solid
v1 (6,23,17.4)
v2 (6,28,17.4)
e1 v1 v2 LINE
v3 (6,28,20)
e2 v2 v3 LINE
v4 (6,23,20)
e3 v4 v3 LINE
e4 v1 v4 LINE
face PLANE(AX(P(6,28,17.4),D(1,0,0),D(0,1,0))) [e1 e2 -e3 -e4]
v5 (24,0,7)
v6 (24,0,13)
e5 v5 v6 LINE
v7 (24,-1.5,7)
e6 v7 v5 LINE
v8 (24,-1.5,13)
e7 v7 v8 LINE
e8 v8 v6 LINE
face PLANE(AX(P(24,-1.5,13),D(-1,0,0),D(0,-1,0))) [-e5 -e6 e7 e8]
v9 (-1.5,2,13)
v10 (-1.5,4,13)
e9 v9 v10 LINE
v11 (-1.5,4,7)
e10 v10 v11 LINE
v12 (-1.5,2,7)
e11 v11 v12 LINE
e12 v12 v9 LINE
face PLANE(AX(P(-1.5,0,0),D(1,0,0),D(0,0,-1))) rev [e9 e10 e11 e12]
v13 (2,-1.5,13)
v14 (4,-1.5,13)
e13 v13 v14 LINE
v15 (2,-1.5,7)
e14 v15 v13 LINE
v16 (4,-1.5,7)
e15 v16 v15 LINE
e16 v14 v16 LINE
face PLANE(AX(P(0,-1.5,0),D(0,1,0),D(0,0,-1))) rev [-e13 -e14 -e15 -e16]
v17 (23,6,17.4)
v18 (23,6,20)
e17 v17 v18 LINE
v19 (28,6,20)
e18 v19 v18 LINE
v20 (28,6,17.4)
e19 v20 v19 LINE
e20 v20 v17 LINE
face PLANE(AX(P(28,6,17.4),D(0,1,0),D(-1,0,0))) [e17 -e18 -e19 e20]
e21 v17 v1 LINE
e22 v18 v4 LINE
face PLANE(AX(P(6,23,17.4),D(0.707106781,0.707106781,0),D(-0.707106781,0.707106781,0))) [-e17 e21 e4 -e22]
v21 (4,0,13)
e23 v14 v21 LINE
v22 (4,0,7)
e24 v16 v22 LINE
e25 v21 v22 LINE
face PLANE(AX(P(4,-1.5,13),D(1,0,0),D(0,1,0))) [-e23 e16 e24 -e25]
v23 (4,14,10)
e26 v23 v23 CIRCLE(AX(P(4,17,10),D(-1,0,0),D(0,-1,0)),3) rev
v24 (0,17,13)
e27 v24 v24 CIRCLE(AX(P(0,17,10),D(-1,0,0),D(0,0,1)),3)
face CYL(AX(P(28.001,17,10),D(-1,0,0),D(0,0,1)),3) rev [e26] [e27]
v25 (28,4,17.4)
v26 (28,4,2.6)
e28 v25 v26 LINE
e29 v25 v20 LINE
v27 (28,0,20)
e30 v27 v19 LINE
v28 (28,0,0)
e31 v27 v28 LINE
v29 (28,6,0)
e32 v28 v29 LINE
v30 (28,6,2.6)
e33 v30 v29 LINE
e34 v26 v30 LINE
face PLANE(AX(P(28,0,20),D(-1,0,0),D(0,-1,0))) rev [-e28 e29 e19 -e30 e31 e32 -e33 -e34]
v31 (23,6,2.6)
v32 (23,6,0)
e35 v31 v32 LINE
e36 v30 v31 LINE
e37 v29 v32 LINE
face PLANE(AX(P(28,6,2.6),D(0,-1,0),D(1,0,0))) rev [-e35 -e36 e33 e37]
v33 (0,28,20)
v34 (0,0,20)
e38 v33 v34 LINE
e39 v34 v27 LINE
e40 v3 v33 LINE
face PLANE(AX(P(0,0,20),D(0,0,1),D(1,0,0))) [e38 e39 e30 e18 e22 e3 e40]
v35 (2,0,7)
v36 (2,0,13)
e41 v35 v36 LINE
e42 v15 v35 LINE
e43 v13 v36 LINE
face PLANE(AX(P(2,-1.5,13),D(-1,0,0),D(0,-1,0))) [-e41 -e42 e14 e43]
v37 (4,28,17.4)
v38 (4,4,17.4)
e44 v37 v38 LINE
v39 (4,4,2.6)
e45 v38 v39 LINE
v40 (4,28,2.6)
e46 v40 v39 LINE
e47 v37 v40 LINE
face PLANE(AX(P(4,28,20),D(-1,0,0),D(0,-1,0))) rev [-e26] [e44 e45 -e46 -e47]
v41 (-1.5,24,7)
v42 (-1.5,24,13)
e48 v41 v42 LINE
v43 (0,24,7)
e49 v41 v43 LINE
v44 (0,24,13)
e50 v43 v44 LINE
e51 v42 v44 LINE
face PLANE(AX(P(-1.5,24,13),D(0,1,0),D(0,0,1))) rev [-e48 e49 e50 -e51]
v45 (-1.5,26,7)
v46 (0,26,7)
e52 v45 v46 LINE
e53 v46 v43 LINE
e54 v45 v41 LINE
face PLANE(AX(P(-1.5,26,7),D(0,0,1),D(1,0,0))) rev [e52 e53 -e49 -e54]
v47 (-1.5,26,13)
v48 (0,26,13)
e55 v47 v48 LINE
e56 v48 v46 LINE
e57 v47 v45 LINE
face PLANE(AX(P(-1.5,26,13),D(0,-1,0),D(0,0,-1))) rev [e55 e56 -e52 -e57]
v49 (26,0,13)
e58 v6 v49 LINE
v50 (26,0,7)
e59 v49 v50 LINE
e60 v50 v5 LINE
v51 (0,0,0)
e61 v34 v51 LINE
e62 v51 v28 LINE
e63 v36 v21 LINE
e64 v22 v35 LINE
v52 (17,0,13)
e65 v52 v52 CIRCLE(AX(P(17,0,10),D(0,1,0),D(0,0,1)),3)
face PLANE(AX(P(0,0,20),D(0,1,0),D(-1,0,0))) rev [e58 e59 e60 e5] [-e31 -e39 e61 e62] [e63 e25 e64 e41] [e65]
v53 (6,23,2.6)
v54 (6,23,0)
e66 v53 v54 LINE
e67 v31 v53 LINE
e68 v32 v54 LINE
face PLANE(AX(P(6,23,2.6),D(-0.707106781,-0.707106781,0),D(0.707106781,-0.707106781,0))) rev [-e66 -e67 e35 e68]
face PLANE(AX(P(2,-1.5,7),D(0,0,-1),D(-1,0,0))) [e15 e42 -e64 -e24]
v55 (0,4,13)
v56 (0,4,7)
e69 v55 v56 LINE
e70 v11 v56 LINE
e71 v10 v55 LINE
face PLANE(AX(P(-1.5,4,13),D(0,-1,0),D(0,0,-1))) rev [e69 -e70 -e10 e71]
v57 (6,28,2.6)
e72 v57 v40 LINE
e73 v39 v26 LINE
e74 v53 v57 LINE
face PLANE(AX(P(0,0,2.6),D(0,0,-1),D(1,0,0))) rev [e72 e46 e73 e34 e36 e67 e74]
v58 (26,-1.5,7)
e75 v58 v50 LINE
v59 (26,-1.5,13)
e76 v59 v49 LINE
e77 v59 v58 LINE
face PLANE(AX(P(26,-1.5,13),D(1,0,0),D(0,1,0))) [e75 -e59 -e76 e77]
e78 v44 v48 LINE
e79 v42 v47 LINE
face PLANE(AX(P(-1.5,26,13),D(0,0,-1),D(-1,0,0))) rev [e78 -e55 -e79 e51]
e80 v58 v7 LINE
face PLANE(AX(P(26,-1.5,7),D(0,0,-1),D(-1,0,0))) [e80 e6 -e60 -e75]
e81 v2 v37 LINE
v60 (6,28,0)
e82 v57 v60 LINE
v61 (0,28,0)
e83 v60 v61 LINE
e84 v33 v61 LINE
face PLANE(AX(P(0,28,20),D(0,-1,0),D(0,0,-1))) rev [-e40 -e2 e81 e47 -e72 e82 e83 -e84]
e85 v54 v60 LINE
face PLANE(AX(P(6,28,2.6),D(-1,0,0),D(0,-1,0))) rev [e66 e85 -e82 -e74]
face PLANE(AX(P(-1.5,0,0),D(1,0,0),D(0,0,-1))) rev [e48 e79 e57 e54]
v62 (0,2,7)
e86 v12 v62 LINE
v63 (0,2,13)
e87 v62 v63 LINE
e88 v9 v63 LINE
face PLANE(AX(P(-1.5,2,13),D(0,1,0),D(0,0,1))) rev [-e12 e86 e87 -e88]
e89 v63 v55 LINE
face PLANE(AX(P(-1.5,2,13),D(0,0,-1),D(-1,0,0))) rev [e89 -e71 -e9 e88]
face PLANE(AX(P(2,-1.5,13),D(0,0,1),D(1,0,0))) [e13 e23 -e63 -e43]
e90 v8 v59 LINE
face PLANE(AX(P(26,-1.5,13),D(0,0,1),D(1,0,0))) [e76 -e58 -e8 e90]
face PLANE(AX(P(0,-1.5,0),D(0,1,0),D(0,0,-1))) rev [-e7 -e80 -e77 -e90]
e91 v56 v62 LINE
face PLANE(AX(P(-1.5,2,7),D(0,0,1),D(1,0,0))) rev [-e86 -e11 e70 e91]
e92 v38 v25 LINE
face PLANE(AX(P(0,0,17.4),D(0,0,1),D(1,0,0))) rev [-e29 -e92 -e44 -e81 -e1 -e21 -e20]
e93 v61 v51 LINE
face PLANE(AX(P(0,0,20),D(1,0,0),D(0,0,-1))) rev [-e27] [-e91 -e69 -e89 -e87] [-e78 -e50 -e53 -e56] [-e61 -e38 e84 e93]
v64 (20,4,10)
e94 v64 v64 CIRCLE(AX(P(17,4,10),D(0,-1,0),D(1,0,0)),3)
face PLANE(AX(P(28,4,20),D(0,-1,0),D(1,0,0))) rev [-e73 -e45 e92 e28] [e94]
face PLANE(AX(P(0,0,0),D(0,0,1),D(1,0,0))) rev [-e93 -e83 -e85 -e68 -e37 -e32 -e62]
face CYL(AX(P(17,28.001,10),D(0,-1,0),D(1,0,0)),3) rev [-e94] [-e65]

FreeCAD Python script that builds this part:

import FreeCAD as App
import Part
import Sketcher

doc = App.newDocument("Part")
body = doc.addObject("PartDesign::Body", "Body")

sketch1 = body.newObject("Sketcher::SketchObject", "Sketch")
sketch1.AttachmentSupport = (doc.getObject("XY_Plane"), [""])
sketch1.MapMode = "FlatFace"
sketch1.addGeometry(Part.LineSegment(App.Vector(0, 28, 0), App.Vector(0, 0, 0)), False)
sketch1.addGeometry(Part.LineSegment(App.Vector(0, 0, 0), App.Vector(28, 0, 0)), False)
sketch1.addGeometry(Part.LineSegment(App.Vector(28, 0, 0), App.Vector(28, 4, 0)), False)
sketch1.addGeometry(Part.LineSegment(App.Vector(28, 4, 0), App.Vector(4, 4, 0)), False)
sketch1.addGeometry(Part.LineSegment(App.Vector(4, 4, 0), App.Vector(4, 28, 0)), False)
sketch1.addGeometry(Part.LineSegment(App.Vector(4, 28, 0), App.Vector(0, 28, 0)), False)
sketch1.addConstraint(Sketcher.Constraint("Coincident", 0, 2, 1, 1))
sketch1.addConstraint(Sketcher.Constraint("Coincident", 1, 2, 2, 1))
sketch1.addConstraint(Sketcher.Constraint("Coincident", 2, 2, 3, 1))
sketch1.addConstraint(Sketcher.Constraint("Coincident", 3, 2, 4, 1))
sketch1.addConstraint(Sketcher.Constraint("Coincident", 4, 2, 5, 1))
sketch1.addConstraint(Sketcher.Constraint("Coincident", 5, 2, 0, 1))
sketch1.addConstraint(Sketcher.Constraint("Vertical", 0))
sketch1.addConstraint(Sketcher.Constraint("Horizontal", 1))
sketch1.addConstraint(Sketcher.Constraint("Vertical", 2))
sketch1.addConstraint(Sketcher.Constraint("Horizontal", 3))
sketch1.addConstraint(Sketcher.Constraint("Vertical", 4))
sketch1.addConstraint(Sketcher.Constraint("Horizontal", 5))
sketch1.addConstraint(Sketcher.Constraint("Coincident", 0, 2, -1, 1))
sketch1.addConstraint(Sketcher.Constraint("Equal", 1, 0))
sketch1.addConstraint(Sketcher.Constraint("Equal", 5, 2))
sketch1.addConstraint(Sketcher.Constraint("DistanceX", 1, 1, 1, 2, 28.0))
sketch1.addConstraint(Sketcher.Constraint("DistanceX", 3, 2, 3, 1, 24.0))
pad1 = body.newObject("PartDesign::Pad", "Pad")
pad1.Profile = sketch1
pad1.Length = 20

sketch2 = body.newObject("Sketcher::SketchObject", "Sketch001")
sketch2.AttachmentSupport = (doc.getObject("XY_Plane"), [""])
sketch2.MapMode = "FlatFace"
sketch2.AttachmentOffset = App.Placement(App.Vector(0, 0, 20), App.Rotation())
sketch2.addGeometry(Part.LineSegment(App.Vector(6, 28, 0), App.Vector(4, 28, 0)), False)
sketch2.addGeometry(Part.LineSegment(App.Vector(4, 28, 0), App.Vector(4, 4, 0)), False)
sketch2.addGeometry(Part.LineSegment(App.Vector(4, 4, 0), App.Vector(28, 4, 0)), False)
sketch2.addGeometry(Part.LineSegment(App.Vector(28, 4, 0), App.Vector(28, 6, 0)), False)
sketch2.addGeometry(Part.LineSegment(App.Vector(28, 6, 0), App.Vector(23, 6, 0)), False)
sketch2.addGeometry(Part.LineSegment(App.Vector(23, 6, 0), App.Vector(6, 23, 0)), False)
sketch2.addGeometry(Part.LineSegment(App.Vector(6, 23, 0), App.Vector(6, 28, 0)), False)
sketch2.addConstraint(Sketcher.Constraint("Coincident", 0, 2, 1, 1))
sketch2.addConstraint(Sketcher.Constraint("Coincident", 1, 2, 2, 1))
sketch2.addConstraint(Sketcher.Constraint("Coincident", 2, 2, 3, 1))
sketch2.addConstraint(Sketcher.Constraint("Coincident", 3, 2, 4, 1))
sketch2.addConstraint(Sketcher.Constraint("Coincident", 4, 2, 5, 1))
sketch2.addConstraint(Sketcher.Constraint("Coincident", 5, 2, 6, 1))
sketch2.addConstraint(Sketcher.Constraint("Coincident", 6, 2, 0, 1))
sketch2.addConstraint(Sketcher.Constraint("Horizontal", 0))
sketch2.addConstraint(Sketcher.Constraint("Vertical", 1))
sketch2.addConstraint(Sketcher.Constraint("Horizontal", 2))
sketch2.addConstraint(Sketcher.Constraint("Vertical", 3))
sketch2.addConstraint(Sketcher.Constraint("Horizontal", 4))
sketch2.addConstraint(Sketcher.Constraint("Vertical", 6))
sketch2.addConstraint(Sketcher.Constraint("Equal", 2, 1))
sketch2.addConstraint(Sketcher.Constraint("Equal", 0, 3))
sketch2.addConstraint(Sketcher.Constraint("Equal", 4, 6))
sketch2.addConstraint(Sketcher.Constraint("DistanceX", 0, 2, 0, 1, 2.0))
sketch2.addConstraint(Sketcher.Constraint("DistanceX", 2, 1, 2, 2, 24.0))
sketch2.addConstraint(Sketcher.Constraint("DistanceX", 4, 2, 4, 1, 5.0))
sketch2.addConstraint(Sketcher.Constraint("DistanceX", -1, 1, 0, 2, 4.0))
sketch2.addConstraint(Sketcher.Constraint("DistanceY", -1, 1, 0, 2, 28.0))
pad2 = body.newObject("PartDesign::Pad", "Pad001")
pad2.Profile = sketch2
pad2.Length = 2.6
pad2.Reversed = True
doc.recompute()

datumplane = body.newObject("PartDesign::Plane", "DatumPlane")
datumplane.AttachmentSupport = (doc.getObject("XY_Plane"), [""])
datumplane.MapMode = "FlatFace"
datumplane.AttachmentOffset = App.Placement(App.Vector(0, 0, 10), App.Rotation())
mirrored = body.newObject("PartDesign::Mirrored", "Mirrored")
mirrored.Originals = [pad2]
mirrored.MirrorPlane = (datumplane, [""])
body.Tip = mirrored

sketch3 = body.newObject("Sketcher::SketchObject", "Sketch002")
sketch3.AttachmentSupport = (doc.getObject("YZ_Plane"), [""])
sketch3.MapMode = "FlatFace"
sketch3.addGeometry(Part.LineSegment(App.Vector(26, 7, 0), App.Vector(24, 7, 0)), False)
sketch3.addGeometry(Part.LineSegment(App.Vector(24, 7, 0), App.Vector(24, 13, 0)), False)
sketch3.addGeometry(Part.LineSegment(App.Vector(24, 13, 0), App.Vector(26, 13, 0)), False)
sketch3.addGeometry(Part.LineSegment(App.Vector(26, 13, 0), App.Vector(26, 7, 0)), False)
sketch3.addGeometry(Part.LineSegment(App.Vector(4, 7, 0), App.Vector(2, 7, 0)), False)
sketch3.addGeometry(Part.LineSegment(App.Vector(2, 7, 0), App.Vector(2, 13, 0)), False)
sketch3.addGeometry(Part.LineSegment(App.Vector(2, 13, 0), App.Vector(4, 13, 0)), False)
sketch3.addGeometry(Part.LineSegment(App.Vector(4, 13, 0), App.Vector(4, 7, 0)), False)
sketch3.addConstraint(Sketcher.Constraint("Coincident", 0, 2, 1, 1))
sketch3.addConstraint(Sketcher.Constraint("Coincident", 1, 2, 2, 1))
sketch3.addConstraint(Sketcher.Constraint("Coincident", 2, 2, 3, 1))
sketch3.addConstraint(Sketcher.Constraint("Coincident", 3, 2, 0, 1))
sketch3.addConstraint(Sketcher.Constraint("Coincident", 4, 2, 5, 1))
sketch3.addConstraint(Sketcher.Constraint("Coincident", 5, 2, 6, 1))
sketch3.addConstraint(Sketcher.Constraint("Coincident", 6, 2, 7, 1))
sketch3.addConstraint(Sketcher.Constraint("Coincident", 7, 2, 4, 1))
sketch3.addConstraint(Sketcher.Constraint("Horizontal", 0))
sketch3.addConstraint(Sketcher.Constraint("Vertical", 1))
sketch3.addConstraint(Sketcher.Constraint("Horizontal", 2))
sketch3.addConstraint(Sketcher.Constraint("Vertical", 3))
sketch3.addConstraint(Sketcher.Constraint("Horizontal", 4))
sketch3.addConstraint(Sketcher.Constraint("Vertical", 5))
sketch3.addConstraint(Sketcher.Constraint("Horizontal", 6))
sketch3.addConstraint(Sketcher.Constraint("Vertical", 7))
sketch3.addConstraint(Sketcher.Constraint("Horizontal", 3, 2, 4, 2))
sketch3.addConstraint(Sketcher.Constraint("Horizontal", 2, 2, 5, 2))
sketch3.addConstraint(Sketcher.Constraint("Equal", 2, 4))
sketch3.addConstraint(Sketcher.Constraint("DistanceX", 0, 2, 0, 1, 2.0))
sketch3.addConstraint(Sketcher.Constraint("DistanceY", 1, 1, 1, 2, 6.0))
sketch3.addConstraint(Sketcher.Constraint("DistanceX", -1, 1, 0, 2, 24.0))
sketch3.addConstraint(Sketcher.Constraint("DistanceY", -1, 1, 0, 2, 7.0))
sketch3.addConstraint(Sketcher.Constraint("DistanceX", -1, 1, 4, 2, 2.0))
pad3 = body.newObject("PartDesign::Pad", "Pad002")
pad3.Profile = sketch3
pad3.Length = 1.5
pad3.Reversed = True
doc.recompute()

datumplane2 = body.newObject("PartDesign::Plane", "DatumPlane001")
datumplane2.Placement = App.Placement(App.Vector(0, 0, 0), App.Rotation(App.Vector(0.707106781, 0.707106781, 0), App.Vector(0, 0, -1), App.Vector(-0.707106781, 0.707106781, 0), "ZXY"))
mirrored2 = body.newObject("PartDesign::Mirrored", "Mirrored001")
mirrored2.Originals = [pad3]
mirrored2.MirrorPlane = (datumplane2, [""])
body.Tip = mirrored2

sketch4 = body.newObject("Sketcher::SketchObject", "Sketch003")
sketch4.AttachmentSupport = (doc.getObject("YZ_Plane"), [""])
sketch4.MapMode = "FlatFace"
sketch4.addGeometry(Part.Circle(App.Vector(17, 10, 0), App.Vector(0, 0, 1), 3), False)
sketch4.addConstraint(Sketcher.Constraint("Diameter", 0, 6.0))
sketch4.addConstraint(Sketcher.Constraint("DistanceX", -1, 1, 0, 3, 17.0))
sketch4.addConstraint(Sketcher.Constraint("DistanceY", -1, 1, 0, 3, 10.0))
pocket1 = body.newObject("PartDesign::Pocket", "Pocket")
pocket1.Profile = sketch4
pocket1.Length = 4
pocket1.Reversed = True
doc.recompute()

datumplane3 = body.newObject("PartDesign::Plane", "DatumPlane002")
datumplane3.Placement = App.Placement(App.Vector(0, 0, 0), App.Rotation(App.Vector(0.707106781, 0.707106781, 0), App.Vector(0, 0, -1), App.Vector(-0.707106781, 0.707106781, 0), "ZXY"))
mirrored3 = body.newObject("PartDesign::Mirrored", "Mirrored002")
mirrored3.Originals = [pocket1]
mirrored3.MirrorPlane = (datumplane3, [""])
body.Tip = mirrored3

doc.recompute()
